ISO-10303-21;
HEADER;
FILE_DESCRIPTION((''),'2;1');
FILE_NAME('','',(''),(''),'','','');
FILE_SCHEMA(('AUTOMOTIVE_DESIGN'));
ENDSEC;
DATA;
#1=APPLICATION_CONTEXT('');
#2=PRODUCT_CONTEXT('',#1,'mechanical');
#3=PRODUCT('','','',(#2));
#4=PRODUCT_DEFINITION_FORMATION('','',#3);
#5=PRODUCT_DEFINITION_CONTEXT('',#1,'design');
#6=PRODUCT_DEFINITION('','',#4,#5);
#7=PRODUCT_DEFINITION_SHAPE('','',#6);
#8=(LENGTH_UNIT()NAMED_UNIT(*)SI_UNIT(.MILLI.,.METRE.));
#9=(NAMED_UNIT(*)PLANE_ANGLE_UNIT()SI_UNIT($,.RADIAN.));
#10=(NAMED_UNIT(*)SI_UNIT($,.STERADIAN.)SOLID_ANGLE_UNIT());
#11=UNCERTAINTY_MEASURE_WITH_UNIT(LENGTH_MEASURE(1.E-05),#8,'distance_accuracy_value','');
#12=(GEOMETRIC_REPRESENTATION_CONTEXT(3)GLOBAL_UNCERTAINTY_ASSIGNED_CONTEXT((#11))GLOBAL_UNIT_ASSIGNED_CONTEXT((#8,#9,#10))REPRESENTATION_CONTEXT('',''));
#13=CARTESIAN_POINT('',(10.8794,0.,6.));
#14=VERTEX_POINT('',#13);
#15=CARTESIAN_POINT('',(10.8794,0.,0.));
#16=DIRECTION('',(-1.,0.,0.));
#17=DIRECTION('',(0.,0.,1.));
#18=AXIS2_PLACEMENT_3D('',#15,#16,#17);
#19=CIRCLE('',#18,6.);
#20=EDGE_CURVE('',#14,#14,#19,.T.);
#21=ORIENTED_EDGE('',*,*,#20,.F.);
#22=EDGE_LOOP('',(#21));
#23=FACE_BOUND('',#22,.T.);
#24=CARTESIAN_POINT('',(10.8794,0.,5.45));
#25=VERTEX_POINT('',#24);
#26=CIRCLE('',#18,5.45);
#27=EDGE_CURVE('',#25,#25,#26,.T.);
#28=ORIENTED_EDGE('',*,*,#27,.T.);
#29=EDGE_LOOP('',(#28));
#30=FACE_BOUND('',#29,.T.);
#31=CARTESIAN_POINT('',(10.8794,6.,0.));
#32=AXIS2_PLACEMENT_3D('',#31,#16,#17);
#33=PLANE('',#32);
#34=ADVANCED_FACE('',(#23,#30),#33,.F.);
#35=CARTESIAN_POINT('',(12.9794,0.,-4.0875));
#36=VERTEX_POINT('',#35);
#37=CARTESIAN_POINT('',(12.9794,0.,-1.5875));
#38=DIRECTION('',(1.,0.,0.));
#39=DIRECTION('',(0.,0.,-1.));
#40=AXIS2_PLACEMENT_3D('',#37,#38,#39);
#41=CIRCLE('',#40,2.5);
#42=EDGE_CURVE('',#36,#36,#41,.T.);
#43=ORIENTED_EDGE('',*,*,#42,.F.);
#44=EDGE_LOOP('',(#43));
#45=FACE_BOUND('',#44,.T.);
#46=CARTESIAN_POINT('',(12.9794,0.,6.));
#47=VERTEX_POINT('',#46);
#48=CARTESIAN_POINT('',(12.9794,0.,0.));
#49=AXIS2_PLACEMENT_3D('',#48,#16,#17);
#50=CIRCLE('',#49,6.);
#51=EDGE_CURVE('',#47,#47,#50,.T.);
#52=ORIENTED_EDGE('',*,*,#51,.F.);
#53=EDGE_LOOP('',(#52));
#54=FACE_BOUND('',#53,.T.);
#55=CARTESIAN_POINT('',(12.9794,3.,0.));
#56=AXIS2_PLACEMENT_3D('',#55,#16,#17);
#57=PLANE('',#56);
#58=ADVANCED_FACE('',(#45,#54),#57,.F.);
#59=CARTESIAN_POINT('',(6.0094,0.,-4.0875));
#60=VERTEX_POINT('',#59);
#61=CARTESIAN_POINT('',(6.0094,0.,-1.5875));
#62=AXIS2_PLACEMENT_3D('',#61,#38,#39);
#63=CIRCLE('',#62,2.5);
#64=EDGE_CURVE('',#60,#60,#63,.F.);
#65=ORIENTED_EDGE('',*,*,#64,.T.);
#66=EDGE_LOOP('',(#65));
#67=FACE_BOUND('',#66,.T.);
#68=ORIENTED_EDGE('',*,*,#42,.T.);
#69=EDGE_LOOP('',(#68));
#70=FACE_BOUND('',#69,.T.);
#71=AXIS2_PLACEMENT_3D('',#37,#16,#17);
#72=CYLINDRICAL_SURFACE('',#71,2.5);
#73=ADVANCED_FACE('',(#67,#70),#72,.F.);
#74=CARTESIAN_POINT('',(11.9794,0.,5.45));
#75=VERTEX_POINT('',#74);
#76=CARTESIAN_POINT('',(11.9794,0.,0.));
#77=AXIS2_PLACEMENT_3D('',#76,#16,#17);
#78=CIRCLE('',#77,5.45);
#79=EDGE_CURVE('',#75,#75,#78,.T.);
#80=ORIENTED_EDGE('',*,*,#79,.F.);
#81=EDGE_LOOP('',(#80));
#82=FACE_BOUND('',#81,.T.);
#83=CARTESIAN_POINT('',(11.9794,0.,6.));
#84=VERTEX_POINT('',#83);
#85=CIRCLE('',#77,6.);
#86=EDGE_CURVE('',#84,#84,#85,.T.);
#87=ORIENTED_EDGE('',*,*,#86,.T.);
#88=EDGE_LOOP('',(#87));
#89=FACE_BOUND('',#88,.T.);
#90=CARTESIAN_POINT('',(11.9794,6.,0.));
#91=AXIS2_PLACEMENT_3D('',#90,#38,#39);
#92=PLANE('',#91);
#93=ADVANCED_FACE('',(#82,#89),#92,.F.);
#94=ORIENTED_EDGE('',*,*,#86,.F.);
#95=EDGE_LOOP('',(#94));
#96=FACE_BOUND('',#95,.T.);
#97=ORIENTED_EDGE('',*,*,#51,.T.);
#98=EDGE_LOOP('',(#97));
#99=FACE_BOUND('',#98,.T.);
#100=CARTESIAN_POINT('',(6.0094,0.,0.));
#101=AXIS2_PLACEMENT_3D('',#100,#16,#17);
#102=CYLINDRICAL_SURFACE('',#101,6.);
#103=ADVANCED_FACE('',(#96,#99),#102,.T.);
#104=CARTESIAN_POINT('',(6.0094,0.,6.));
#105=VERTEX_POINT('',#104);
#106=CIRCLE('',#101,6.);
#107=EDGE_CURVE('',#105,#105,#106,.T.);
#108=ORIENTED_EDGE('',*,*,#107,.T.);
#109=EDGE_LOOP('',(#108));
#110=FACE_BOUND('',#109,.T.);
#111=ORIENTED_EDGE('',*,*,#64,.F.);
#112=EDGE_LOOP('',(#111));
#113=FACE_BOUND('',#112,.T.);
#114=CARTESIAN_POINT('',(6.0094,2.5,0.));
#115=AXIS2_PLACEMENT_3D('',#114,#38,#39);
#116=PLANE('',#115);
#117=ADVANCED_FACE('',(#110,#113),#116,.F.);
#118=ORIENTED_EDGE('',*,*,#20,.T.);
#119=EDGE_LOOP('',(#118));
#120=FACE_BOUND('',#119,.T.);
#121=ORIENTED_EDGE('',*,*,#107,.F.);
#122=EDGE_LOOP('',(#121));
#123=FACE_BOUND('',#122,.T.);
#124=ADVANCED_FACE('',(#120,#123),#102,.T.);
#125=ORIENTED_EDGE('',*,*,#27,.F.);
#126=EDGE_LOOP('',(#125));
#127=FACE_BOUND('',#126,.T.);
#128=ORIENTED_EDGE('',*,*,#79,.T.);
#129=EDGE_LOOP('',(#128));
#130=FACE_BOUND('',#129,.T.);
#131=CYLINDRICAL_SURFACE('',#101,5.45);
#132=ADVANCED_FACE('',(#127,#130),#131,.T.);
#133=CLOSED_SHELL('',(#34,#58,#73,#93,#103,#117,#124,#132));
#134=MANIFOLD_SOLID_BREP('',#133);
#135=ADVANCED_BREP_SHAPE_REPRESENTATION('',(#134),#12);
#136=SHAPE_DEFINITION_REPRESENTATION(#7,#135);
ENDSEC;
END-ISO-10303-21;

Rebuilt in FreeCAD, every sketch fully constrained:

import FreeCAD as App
import Part
import Sketcher

V = App.Vector
Q = App.Units.Quantity


def add_polygon(sketch, points):
    """Adds a closed chain of lines whose ends are joined by coincident constraints."""
    first, n = sketch.GeometryCount, len(points)
    for a, b in zip(points, points[1:] + points[:1]):
        sketch.addGeometry(Part.LineSegment(App.Vector(*a, 0), App.Vector(*b, 0)), False)
    for i in range(n):
        sketch.addConstraint(Sketcher.Constraint("Coincident", first + i, 2, first + (i + 1) % n, 1))

doc = App.newDocument("Part")
body = doc.addObject("PartDesign::Body", "Body")

# Sketch on XY plane
sketch1 = body.newObject("Sketcher::SketchObject", "Sketch")
sketch1.AttachmentSupport = (doc.getObject("XY_Plane"), [""])
sketch1.MapMode = "FlatFace"
add_polygon(sketch1, [(13, 0), (13, 6), (12, 6), (12, 5.5), (10.9, 5.5), (10.9, 6), (6, 6), (6, 0)])  # lines 0-7
sketch1.addConstraint([
    Sketcher.Constraint("Vertical", 0),
    Sketcher.Constraint("Horizontal", 1),
    Sketcher.Constraint("Vertical", 2),
    Sketcher.Constraint("Horizontal", 3),
    Sketcher.Constraint("Vertical", 4),
    Sketcher.Constraint("Horizontal", 5),
    Sketcher.Constraint("Vertical", 6),
    Sketcher.Constraint("Horizontal", 7),
    Sketcher.Constraint("PointOnObject", 6, 2, -1),
    Sketcher.Constraint("Horizontal", 1, 2, 4, 2),
    Sketcher.Constraint("DistanceX", 1, 2, 1, 1, Q("1 mm")),
    Sketcher.Constraint("DistanceY", 0, 1, 0, 2, Q("6 mm")),
    Sketcher.Constraint("DistanceX", 3, 2, 3, 1, Q("1.1 mm")),
    Sketcher.Constraint("DistanceX", 5, 2, 5, 1, Q("4.87 mm")),
    Sketcher.Constraint("DistanceY", 2, 2, 2, 1, Q("0.55 mm")),
    Sketcher.Constraint("DistanceX", -1, 1, 0, 2, Q("12.9794 mm")),
])
revolution = body.newObject("PartDesign::Revolution", "Revolution")
revolution.Profile = sketch1
revolution.ReferenceAxis = (sketch1, ["H_Axis"])
revolution.Angle = 360

# Sketch on YZ plane
sketch2 = body.newObject("Sketcher::SketchObject", "Sketch001")
sketch2.AttachmentSupport = (doc.getObject("YZ_Plane"), [""])
sketch2.MapMode = "FlatFace"
sketch2.addGeometry(Part.Circle(V(0, -1.6, 0), V(0, 0, 1), 2.5), False)
sketch2.addConstraint([
    Sketcher.Constraint("PointOnObject", 0, 3, -2),
    Sketcher.Constraint("Diameter", 0, Q("5 mm")),
    Sketcher.Constraint("DistanceY", 0, 3, -1, 1, Q("1.5875 mm")),
])
pocket1 = body.newObject("PartDesign::Pocket", "Pocket")
pocket1.Profile = sketch2
pocket1.Type = "ThroughAll"
pocket1.Reversed = True

doc.recompute()
